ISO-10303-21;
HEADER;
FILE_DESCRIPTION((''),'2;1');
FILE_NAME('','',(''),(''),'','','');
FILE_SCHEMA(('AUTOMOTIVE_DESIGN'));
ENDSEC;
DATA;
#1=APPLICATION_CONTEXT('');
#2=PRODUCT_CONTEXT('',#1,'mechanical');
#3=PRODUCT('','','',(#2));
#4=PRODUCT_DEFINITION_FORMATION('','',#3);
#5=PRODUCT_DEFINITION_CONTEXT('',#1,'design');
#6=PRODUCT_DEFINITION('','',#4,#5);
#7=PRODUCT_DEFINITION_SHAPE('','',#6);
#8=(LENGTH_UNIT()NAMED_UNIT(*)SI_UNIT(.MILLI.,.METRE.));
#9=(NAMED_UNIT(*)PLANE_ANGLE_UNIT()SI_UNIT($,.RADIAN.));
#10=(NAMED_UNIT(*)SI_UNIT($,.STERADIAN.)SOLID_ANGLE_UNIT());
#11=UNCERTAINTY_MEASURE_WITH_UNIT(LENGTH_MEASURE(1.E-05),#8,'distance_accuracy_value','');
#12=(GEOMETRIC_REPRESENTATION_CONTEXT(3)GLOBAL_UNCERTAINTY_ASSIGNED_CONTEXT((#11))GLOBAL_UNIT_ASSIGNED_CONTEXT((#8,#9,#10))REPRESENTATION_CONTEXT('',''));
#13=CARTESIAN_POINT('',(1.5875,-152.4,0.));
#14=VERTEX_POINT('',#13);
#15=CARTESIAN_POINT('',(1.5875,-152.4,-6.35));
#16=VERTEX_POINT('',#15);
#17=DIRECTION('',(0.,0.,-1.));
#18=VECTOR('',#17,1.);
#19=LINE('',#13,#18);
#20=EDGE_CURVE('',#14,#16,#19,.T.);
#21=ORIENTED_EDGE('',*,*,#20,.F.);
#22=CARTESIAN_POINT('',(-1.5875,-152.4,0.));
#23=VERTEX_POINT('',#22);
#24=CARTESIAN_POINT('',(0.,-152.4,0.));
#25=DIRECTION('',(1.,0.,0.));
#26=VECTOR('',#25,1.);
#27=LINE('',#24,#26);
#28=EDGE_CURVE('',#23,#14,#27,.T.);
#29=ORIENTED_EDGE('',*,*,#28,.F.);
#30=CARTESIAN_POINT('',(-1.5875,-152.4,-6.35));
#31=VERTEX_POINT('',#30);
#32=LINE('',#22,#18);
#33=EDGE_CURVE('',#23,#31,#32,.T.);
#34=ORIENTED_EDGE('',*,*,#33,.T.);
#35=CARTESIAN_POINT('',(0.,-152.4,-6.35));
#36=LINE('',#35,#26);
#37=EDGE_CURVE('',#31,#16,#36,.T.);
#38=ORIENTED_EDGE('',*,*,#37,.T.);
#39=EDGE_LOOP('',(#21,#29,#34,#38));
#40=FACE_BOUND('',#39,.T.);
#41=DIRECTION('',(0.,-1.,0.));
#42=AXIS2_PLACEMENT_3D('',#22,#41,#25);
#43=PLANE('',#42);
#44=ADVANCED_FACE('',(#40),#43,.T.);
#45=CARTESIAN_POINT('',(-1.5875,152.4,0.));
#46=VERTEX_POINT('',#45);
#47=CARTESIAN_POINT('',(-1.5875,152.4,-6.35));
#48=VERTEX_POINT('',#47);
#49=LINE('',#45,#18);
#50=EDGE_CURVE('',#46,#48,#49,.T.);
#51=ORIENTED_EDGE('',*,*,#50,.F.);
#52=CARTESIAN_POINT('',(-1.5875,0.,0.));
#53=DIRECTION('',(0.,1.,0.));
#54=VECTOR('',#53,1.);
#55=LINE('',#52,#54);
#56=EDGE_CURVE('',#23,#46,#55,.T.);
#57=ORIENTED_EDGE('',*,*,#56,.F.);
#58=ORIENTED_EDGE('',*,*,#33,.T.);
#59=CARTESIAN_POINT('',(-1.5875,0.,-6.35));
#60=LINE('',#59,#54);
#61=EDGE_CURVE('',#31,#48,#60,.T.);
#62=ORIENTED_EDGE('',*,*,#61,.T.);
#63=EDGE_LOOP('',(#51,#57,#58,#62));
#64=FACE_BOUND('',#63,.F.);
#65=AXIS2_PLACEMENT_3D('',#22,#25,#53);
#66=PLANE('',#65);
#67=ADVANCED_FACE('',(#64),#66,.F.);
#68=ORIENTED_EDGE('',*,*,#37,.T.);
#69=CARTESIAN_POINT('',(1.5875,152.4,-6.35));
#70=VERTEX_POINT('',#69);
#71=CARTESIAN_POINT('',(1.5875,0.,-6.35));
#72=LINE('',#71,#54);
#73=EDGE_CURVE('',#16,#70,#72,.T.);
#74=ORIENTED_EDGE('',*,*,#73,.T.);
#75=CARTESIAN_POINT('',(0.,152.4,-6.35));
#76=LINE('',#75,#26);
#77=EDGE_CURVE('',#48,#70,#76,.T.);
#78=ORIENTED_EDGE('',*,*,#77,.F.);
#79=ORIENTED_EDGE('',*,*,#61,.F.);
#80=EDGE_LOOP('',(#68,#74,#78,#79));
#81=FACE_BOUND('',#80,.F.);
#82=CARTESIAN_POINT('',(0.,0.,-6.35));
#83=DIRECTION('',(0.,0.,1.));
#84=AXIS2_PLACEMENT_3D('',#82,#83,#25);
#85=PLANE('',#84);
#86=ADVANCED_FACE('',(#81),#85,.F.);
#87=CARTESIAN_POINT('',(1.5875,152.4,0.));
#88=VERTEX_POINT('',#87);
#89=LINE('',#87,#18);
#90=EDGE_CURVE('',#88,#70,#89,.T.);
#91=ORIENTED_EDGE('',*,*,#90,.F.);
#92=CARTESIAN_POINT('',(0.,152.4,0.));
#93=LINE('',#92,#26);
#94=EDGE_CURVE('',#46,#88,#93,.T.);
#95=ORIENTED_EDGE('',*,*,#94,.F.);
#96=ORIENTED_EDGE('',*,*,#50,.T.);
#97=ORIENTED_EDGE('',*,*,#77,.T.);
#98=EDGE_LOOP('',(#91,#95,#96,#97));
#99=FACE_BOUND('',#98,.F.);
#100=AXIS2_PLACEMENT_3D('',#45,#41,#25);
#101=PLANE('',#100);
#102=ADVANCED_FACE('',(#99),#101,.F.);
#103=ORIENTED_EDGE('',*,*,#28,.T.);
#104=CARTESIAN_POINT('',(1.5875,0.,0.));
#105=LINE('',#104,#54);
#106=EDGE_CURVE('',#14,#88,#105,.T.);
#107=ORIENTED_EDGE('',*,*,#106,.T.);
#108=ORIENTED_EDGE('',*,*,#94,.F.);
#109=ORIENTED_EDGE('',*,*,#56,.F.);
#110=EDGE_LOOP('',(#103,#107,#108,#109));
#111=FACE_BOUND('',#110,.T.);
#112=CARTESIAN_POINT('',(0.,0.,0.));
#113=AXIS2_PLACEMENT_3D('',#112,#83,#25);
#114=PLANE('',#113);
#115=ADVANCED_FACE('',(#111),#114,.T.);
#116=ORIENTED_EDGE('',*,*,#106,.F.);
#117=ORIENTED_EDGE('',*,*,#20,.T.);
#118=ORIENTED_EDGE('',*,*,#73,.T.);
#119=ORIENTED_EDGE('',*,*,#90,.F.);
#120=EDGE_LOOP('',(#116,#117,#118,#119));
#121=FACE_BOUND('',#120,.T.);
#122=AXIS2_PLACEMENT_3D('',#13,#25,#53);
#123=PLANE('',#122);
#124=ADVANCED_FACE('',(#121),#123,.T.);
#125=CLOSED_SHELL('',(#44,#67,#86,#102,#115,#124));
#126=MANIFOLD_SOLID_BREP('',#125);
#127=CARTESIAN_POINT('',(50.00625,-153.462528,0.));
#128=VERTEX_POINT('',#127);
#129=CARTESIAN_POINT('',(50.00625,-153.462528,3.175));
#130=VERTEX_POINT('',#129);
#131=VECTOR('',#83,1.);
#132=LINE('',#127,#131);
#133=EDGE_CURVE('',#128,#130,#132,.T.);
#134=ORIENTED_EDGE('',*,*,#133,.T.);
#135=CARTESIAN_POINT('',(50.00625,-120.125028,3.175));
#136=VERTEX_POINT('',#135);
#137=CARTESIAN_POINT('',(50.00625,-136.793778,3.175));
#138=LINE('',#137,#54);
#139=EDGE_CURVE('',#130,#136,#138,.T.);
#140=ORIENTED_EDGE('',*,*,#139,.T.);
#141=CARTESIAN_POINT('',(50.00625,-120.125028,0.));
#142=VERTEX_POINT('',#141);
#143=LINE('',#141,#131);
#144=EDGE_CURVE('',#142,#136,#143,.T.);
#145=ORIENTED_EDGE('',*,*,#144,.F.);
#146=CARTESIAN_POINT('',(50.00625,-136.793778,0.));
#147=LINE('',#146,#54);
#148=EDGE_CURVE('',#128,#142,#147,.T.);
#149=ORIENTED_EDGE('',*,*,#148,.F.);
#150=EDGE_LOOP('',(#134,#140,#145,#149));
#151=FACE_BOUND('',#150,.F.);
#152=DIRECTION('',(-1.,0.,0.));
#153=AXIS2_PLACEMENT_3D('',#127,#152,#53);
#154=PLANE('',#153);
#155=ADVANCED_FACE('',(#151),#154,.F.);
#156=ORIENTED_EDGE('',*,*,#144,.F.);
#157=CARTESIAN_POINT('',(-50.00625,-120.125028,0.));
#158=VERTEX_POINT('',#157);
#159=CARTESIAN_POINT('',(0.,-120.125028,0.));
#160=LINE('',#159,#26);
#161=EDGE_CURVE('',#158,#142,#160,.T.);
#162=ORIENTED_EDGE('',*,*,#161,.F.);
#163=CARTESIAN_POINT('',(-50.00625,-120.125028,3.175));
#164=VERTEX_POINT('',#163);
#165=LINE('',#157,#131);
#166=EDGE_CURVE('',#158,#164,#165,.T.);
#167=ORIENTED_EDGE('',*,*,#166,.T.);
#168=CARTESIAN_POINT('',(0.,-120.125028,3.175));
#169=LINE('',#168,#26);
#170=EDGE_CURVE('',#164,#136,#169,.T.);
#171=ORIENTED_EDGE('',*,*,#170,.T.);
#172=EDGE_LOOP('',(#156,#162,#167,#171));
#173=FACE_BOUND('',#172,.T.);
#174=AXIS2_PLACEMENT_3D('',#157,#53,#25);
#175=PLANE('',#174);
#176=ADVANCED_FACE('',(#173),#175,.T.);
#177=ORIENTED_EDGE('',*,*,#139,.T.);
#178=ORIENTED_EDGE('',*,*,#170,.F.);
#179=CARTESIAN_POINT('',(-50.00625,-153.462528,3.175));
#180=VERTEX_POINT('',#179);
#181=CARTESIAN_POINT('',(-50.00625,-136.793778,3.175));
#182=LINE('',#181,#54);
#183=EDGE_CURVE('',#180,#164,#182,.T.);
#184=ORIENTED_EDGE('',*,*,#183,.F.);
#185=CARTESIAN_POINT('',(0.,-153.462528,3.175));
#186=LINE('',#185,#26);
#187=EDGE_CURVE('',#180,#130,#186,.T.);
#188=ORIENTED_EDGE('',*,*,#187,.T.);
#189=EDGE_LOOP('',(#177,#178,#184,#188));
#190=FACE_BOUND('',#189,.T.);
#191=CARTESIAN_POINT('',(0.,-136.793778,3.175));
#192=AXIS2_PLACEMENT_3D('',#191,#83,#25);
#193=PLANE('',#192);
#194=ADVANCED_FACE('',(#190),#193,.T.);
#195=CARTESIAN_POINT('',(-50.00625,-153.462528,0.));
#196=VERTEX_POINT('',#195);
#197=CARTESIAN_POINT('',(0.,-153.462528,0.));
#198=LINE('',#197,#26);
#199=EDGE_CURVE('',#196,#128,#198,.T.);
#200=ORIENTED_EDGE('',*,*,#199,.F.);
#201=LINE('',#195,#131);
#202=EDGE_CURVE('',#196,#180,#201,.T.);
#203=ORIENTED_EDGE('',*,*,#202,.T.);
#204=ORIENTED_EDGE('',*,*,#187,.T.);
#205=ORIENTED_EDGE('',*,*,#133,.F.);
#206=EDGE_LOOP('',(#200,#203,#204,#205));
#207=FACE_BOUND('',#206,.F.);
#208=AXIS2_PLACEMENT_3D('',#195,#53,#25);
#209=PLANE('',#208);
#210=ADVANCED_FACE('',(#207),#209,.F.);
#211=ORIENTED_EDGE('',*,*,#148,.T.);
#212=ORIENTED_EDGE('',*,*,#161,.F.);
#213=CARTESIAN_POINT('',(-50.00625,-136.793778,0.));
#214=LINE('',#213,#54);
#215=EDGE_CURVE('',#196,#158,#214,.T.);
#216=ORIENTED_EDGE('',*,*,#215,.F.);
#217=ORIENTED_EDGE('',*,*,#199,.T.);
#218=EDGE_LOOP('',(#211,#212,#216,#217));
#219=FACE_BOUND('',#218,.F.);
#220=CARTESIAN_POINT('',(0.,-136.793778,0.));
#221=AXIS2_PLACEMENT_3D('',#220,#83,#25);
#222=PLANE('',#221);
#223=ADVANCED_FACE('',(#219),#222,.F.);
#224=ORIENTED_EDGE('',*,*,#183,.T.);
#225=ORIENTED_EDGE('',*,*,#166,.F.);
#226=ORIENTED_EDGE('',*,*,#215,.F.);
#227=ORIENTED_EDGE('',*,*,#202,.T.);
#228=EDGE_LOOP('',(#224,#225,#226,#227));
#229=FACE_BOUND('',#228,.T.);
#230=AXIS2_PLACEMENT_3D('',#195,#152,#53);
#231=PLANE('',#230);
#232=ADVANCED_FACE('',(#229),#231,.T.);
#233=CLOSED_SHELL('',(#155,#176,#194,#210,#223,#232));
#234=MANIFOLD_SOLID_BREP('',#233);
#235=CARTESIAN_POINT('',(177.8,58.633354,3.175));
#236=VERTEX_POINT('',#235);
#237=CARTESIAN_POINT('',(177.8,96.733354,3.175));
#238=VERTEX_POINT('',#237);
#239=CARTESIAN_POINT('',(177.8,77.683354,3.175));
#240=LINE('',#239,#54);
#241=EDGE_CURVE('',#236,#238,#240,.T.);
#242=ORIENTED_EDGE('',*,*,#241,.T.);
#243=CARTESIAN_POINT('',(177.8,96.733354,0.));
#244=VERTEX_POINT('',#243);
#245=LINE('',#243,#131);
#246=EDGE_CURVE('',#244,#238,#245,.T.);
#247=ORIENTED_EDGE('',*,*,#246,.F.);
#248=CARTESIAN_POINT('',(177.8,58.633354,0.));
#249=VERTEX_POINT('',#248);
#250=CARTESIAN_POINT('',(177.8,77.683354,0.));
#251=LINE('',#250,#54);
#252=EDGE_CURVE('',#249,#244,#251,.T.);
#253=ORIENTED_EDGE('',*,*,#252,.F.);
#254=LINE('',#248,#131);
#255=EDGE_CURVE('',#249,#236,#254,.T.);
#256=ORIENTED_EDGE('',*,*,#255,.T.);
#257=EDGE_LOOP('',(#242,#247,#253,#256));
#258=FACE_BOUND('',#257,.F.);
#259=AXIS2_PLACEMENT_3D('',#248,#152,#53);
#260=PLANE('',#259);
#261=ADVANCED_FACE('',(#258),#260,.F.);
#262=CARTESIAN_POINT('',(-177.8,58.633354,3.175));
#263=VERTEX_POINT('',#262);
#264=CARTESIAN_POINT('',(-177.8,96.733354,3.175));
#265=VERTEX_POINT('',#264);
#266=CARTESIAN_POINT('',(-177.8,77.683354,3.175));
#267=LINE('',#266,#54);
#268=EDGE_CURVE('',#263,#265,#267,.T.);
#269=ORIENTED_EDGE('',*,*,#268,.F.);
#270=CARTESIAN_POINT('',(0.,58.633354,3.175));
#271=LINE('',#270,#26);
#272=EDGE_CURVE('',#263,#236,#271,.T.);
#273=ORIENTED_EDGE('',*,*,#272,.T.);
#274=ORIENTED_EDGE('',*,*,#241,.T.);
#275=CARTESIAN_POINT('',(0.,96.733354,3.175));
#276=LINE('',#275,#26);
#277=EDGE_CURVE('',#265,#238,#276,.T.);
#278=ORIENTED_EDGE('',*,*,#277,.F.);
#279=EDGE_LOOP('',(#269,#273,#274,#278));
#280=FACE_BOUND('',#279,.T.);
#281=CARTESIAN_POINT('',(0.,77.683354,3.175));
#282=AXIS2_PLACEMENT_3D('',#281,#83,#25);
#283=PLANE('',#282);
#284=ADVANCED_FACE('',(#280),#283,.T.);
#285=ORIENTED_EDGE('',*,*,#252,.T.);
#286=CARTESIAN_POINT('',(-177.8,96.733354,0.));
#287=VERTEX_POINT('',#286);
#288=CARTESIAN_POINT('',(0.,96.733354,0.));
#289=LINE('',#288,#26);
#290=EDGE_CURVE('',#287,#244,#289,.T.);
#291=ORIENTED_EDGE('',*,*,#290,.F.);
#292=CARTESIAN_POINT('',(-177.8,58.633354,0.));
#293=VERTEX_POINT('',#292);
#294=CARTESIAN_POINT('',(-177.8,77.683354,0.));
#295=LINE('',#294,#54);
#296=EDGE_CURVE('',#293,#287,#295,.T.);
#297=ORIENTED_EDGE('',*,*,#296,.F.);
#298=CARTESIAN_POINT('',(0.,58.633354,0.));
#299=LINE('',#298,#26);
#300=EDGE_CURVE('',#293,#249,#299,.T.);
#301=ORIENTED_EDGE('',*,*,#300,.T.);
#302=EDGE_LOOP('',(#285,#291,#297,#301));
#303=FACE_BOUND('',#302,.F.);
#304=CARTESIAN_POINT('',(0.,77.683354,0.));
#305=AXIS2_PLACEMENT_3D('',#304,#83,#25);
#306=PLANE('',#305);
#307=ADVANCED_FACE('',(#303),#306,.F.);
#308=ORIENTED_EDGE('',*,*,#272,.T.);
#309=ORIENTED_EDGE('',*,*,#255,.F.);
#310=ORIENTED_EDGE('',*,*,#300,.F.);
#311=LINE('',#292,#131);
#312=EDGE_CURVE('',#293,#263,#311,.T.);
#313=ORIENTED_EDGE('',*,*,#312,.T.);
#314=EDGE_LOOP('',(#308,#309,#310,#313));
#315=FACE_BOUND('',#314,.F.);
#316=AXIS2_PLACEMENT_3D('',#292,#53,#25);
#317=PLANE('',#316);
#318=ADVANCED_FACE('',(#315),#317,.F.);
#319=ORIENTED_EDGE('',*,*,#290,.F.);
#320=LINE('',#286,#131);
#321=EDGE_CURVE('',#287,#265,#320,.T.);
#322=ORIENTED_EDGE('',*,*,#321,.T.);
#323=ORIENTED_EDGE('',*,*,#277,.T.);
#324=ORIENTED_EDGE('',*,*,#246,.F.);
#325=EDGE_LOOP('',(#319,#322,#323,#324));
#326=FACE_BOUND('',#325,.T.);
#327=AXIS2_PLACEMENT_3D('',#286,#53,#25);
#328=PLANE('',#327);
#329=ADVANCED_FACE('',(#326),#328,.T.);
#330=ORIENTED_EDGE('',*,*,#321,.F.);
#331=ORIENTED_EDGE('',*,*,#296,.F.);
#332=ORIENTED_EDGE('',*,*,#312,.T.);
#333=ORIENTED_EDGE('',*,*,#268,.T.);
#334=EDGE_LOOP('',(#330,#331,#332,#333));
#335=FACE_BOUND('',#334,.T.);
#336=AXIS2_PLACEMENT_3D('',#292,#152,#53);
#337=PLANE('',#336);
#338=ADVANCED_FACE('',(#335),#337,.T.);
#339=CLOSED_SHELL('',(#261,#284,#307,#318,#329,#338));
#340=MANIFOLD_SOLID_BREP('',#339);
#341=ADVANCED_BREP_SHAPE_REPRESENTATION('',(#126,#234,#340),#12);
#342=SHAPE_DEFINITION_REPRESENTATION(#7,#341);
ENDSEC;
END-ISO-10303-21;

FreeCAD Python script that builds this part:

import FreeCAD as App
import Part
import Sketcher
from FreeCAD import Vector
Q = App.Units.Quantity


def add_polygon(sketch, points):
    """Adds a closed chain of lines whose ends are joined by coincident constraints."""
    first, n = sketch.GeometryCount, len(points)
    for a, b in zip(points, points[1:] + points[:1]):
        sketch.addGeometry(Part.LineSegment(App.Vector(*a, 0), App.Vector(*b, 0)), False)
    for i in range(n):
        sketch.addConstraint(Sketcher.Constraint("Coincident", first + i, 2, first + (i + 1) % n, 1))

doc = App.newDocument("Part")
body = doc.addObject("PartDesign::Body", "Body")

sketch1 = body.newObject("Sketcher::SketchObject", "Sketch")
sketch1.AttachmentSupport = (doc.getObject("XY_Plane"), [""])
sketch1.MapMode = "FlatFace"
add_polygon(sketch1, [(-177.8, 96.733354), (-177.8, 58.633354), (177.8, 58.633354), (177.8, 96.733354)])
sketch1.addConstraint(Sketcher.Constraint("Vertical", 0))
sketch1.addConstraint(Sketcher.Constraint("Horizontal", 1))
sketch1.addConstraint(Sketcher.Constraint("Vertical", 2))
sketch1.addConstraint(Sketcher.Constraint("Horizontal", 3))
sketch1.addConstraint(Sketcher.Constraint("DistanceX", 1, 1, 1, 2, Q("14 in")))
sketch1.addConstraint(Sketcher.Constraint("DistanceY", 0, 2, 0, 1, Q("1.5 in")))
sketch1.addConstraint(Sketcher.Constraint("DistanceX", 0, 2, -1, 1, Q("7 in")))
sketch1.addConstraint(Sketcher.Constraint("DistanceY", -1, 1, 0, 2, Q("58.633354 mm")))
pad1 = body.newObject("PartDesign::Pad", "Pad")
pad1.Profile = sketch1
pad1.Length = Q("0.125 in")
body2 = doc.addObject("PartDesign::Body", "Body001")

sketch2 = body2.newObject("Sketcher::SketchObject", "Sketch001")
sketch2.AttachmentSupport = (doc.getObject("XY_Plane001"), [""])
sketch2.MapMode = "FlatFace"
add_polygon(sketch2, [(-50.00625, -120.125028), (-50.00625, -153.462528), (50.00625, -153.462528), (50.00625, -120.125028)])
sketch2.addConstraint(Sketcher.Constraint("Vertical", 0))
sketch2.addConstraint(Sketcher.Constraint("Horizontal", 1))
sketch2.addConstraint(Sketcher.Constraint("Vertical", 2))
sketch2.addConstraint(Sketcher.Constraint("Horizontal", 3))
sketch2.addConstraint(Sketcher.Constraint("DistanceX", 1, 1, 1, 2, Q("3.9375 in")))
sketch2.addConstraint(Sketcher.Constraint("DistanceY", 0, 2, 0, 1, Q("1.3125 in")))
sketch2.addConstraint(Sketcher.Constraint("DistanceX", 0, 2, -1, 1, Q("1.96875 in")))
sketch2.addConstraint(Sketcher.Constraint("DistanceY", 0, 2, -1, 1, Q("153.462528 mm")))
pad2 = body2.newObject("PartDesign::Pad", "Pad001")
pad2.Profile = sketch2
pad2.Length = Q("0.125 in")
body3 = doc.addObject("PartDesign::Body", "Body002")

sketch3 = body3.newObject("Sketcher::SketchObject", "Sketch002")
sketch3.AttachmentSupport = (doc.getObject("XY_Plane002"), [""])
sketch3.MapMode = "FlatFace"
add_polygon(sketch3, [(-1.5875, 152.4), (-1.5875, -152.4), (1.5875, -152.4), (1.5875, 152.4)])
sketch3.addConstraint(Sketcher.Constraint("Vertical", 0))
sketch3.addConstraint(Sketcher.Constraint("Horizontal", 1))
sketch3.addConstraint(Sketcher.Constraint("Vertical", 2))
sketch3.addConstraint(Sketcher.Constraint("Horizontal", 3))
sketch3.addConstraint(Sketcher.Constraint("Symmetric", 0, 2, 2, 2, -1, 1))
sketch3.addConstraint(Sketcher.Constraint("DistanceY", 0, 2, 0, 1, Q("12 in")))
sketch3.addConstraint(Sketcher.Constraint("DistanceX", 1, 1, 1, 2, Q("0.125 in")))
pad3 = body3.newObject("PartDesign::Pad", "Pad002")
pad3.Profile = sketch3
pad3.Length = Q("0.25 in")
pad3.Reversed = True

doc.recompute()
